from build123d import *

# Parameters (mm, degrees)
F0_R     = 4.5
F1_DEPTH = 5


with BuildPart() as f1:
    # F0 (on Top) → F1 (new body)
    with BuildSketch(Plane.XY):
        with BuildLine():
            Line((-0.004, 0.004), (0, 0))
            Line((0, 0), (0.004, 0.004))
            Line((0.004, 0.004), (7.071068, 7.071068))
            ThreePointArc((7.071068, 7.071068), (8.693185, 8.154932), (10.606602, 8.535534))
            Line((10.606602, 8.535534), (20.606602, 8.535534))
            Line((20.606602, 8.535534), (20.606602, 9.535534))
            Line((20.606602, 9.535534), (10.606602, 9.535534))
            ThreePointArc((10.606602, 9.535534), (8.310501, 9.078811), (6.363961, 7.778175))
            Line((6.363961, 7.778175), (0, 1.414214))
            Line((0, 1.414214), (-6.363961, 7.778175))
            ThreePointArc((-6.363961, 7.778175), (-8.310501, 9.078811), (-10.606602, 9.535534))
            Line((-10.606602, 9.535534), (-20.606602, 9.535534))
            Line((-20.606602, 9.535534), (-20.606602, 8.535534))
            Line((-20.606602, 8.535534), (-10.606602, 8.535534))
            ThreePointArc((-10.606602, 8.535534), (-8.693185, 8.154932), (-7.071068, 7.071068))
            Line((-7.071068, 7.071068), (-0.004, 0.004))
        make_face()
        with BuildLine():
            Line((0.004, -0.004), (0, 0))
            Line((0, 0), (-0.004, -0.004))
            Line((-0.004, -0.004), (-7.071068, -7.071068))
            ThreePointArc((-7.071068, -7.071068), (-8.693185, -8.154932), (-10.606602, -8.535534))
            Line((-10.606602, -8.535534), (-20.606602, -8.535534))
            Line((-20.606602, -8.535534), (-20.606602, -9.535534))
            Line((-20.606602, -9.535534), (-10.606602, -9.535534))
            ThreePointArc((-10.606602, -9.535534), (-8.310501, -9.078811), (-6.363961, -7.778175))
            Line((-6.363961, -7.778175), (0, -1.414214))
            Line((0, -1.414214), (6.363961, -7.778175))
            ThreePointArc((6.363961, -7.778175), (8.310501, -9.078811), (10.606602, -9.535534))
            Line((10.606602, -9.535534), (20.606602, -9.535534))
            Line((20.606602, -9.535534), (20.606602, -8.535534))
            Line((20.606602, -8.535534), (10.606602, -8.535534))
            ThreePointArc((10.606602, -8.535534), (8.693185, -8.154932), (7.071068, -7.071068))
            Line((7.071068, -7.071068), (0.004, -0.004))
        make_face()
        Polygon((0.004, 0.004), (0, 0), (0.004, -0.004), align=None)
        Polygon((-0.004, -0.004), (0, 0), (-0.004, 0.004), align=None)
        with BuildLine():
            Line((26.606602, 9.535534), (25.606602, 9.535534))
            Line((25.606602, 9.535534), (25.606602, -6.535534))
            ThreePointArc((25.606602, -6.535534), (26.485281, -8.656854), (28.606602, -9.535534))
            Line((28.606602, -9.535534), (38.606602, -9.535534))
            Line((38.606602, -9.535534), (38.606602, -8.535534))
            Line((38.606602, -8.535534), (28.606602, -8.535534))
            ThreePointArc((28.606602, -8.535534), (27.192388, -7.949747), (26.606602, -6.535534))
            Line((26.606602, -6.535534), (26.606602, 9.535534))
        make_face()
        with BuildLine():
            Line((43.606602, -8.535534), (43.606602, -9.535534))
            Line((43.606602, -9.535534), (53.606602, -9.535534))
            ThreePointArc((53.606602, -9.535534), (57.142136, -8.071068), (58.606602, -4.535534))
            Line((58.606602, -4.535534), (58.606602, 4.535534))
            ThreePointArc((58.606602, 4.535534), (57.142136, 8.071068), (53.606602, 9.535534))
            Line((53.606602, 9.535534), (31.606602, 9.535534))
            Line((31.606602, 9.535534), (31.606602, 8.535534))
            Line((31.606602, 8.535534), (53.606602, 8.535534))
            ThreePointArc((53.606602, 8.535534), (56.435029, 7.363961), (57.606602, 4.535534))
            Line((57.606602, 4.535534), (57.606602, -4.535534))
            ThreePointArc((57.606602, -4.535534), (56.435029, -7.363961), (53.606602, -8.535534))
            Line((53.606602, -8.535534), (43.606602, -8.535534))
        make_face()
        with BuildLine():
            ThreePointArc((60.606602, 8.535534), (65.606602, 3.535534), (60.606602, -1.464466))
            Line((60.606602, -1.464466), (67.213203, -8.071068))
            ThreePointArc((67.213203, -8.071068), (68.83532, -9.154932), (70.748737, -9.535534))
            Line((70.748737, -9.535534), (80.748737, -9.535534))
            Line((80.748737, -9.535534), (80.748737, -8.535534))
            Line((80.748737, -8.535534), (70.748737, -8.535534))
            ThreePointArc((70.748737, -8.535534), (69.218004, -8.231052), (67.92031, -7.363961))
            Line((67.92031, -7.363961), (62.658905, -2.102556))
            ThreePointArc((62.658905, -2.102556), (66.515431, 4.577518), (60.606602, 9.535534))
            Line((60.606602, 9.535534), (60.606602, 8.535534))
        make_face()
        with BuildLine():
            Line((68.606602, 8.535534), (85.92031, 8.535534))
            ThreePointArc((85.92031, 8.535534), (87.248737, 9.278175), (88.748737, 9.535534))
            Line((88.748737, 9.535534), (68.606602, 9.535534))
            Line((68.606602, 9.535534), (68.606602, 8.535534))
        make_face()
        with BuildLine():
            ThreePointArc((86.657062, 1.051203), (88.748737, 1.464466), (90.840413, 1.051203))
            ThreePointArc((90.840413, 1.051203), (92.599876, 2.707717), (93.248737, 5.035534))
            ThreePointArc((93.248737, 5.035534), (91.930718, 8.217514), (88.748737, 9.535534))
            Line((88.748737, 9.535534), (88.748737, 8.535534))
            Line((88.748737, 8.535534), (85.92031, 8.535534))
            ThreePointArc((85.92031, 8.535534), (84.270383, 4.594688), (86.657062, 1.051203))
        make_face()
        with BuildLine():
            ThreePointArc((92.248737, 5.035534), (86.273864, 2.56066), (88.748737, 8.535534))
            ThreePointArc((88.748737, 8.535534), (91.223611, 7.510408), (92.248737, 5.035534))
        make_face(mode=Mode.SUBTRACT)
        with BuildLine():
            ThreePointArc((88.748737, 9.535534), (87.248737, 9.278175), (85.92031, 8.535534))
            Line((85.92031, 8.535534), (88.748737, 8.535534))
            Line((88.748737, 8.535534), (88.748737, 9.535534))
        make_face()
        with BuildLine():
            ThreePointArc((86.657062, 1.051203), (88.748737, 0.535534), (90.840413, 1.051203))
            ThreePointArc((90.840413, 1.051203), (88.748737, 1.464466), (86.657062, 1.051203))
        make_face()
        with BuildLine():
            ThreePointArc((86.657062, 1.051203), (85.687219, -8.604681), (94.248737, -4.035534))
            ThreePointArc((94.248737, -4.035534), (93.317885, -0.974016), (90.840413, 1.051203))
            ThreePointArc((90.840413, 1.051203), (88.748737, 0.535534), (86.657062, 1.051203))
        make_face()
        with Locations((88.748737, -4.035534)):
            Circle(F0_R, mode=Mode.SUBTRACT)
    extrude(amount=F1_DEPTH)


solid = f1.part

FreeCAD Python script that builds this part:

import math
import FreeCAD as App
import Part
import Sketcher
from FreeCAD import Vector

doc = App.newDocument("Part")
body = doc.addObject("PartDesign::Body", "Body")
body.AllowCompound = True

# Sketch on XY plane
sketch1 = doc.addObject("Sketcher::SketchObject", "Sketch")
body.addObject(sketch1)
sketch1.AttachmentSupport = (doc.XY_Plane, [""])
sketch1.MapMode = "FlatFace"
sketch1.addGeometry([
    Part.LineSegment(Vector(0.004, 0.004, 0), Vector(7.071, 7.071, 0)),  # 0
    Part.ArcOfCircle(Part.Circle(Vector(10.607, 3.536, 0), Vector(0, 0, 1), 5), math.radians(90), math.radians(135)),  # 1
    Part.LineSegment(Vector(10.607, 8.536, 0), Vector(20.607, 8.536, 0)),  # 2
    Part.LineSegment(Vector(20.607, 8.536, 0), Vector(20.607, 9.536, 0)),  # 3
    Part.LineSegment(Vector(20.607, 9.536, 0), Vector(10.607, 9.536, 0)),  # 4
    Part.ArcOfCircle(Part.Circle(Vector(10.607, 3.536, 0), Vector(0, 0, 1), 6), math.radians(90), math.radians(135)),  # 5
    Part.LineSegment(Vector(6.364, 7.778, 0), Vector(0, 1.414, 0)),  # 6
    Part.LineSegment(Vector(0, 1.414, 0), Vector(-6.364, 7.778, 0)),  # 7
    Part.ArcOfCircle(Part.Circle(Vector(-10.607, 3.536, 0), Vector(0, 0, 1), 6), math.radians(45), math.radians(90)),  # 8
    Part.LineSegment(Vector(-10.607, 9.536, 0), Vector(-20.607, 9.536, 0)),  # 9
    Part.LineSegment(Vector(-20.607, 9.536, 0), Vector(-20.607, 8.536, 0)),  # 10
    Part.LineSegment(Vector(-20.607, 8.536, 0), Vector(-10.607, 8.536, 0)),  # 11
    Part.ArcOfCircle(Part.Circle(Vector(-10.607, 3.536, 0), Vector(0, 0, 1), 5), math.radians(45), math.radians(90)),  # 12
    Part.LineSegment(Vector(-7.071, 7.071, 0), Vector(-0.004, 0.004, 0)),  # 13
    Part.LineSegment(Vector(-0.004, 0.004, 0), Vector(-0.004, -0.004, 0)),  # 14
    Part.LineSegment(Vector(-0.004, -0.004, 0), Vector(-7.071, -7.071, 0)),  # 15
    Part.ArcOfCircle(Part.Circle(Vector(-10.607, -3.536, 0), Vector(0, 0, 1), 5), math.radians(-90), math.radians(-45)),  # 16
    Part.LineSegment(Vector(-10.607, -8.536, 0), Vector(-20.607, -8.536, 0)),  # 17
    Part.LineSegment(Vector(-20.607, -8.536, 0), Vector(-20.607, -9.536, 0)),  # 18
    Part.LineSegment(Vector(-20.607, -9.536, 0), Vector(-10.607, -9.536, 0)),  # 19
    Part.ArcOfCircle(Part.Circle(Vector(-10.607, -3.536, 0), Vector(0, 0, 1), 6), math.radians(-90), math.radians(-45)),  # 20
    Part.LineSegment(Vector(-6.364, -7.778, 0), Vector(0, -1.414, 0)),  # 21
    Part.LineSegment(Vector(0, -1.414, 0), Vector(6.364, -7.778, 0)),  # 22
    Part.ArcOfCircle(Part.Circle(Vector(10.607, -3.536, 0), Vector(0, 0, 1), 6), math.radians(-135), math.radians(-90)),  # 23
    Part.LineSegment(Vector(10.607, -9.536, 0), Vector(20.607, -9.536, 0)),  # 24
    Part.LineSegment(Vector(20.607, -9.536, 0), Vector(20.607, -8.536, 0)),  # 25
    Part.LineSegment(Vector(20.607, -8.536, 0), Vector(10.607, -8.536, 0)),  # 26
    Part.ArcOfCircle(Part.Circle(Vector(10.607, -3.536, 0), Vector(0, 0, 1), 5), math.radians(-135), math.radians(-90)),  # 27
    Part.LineSegment(Vector(7.071, -7.071, 0), Vector(0.004, -0.004, 0)),  # 28
    Part.LineSegment(Vector(0.004, -0.004, 0), Vector(0.004, 0.004, 0)),  # 29
    Part.LineSegment(Vector(26.607, 9.536, 0), Vector(25.607, 9.536, 0)),  # 30
    Part.LineSegment(Vector(25.607, 9.536, 0), Vector(25.607, -6.536, 0)),  # 31
    Part.ArcOfCircle(Part.Circle(Vector(28.607, -6.536, 0), Vector(0, 0, 1), 3), math.radians(180), math.radians(270)),  # 32
    Part.LineSegment(Vector(28.607, -9.536, 0), Vector(38.607, -9.536, 0)),  # 33
    Part.LineSegment(Vector(38.607, -9.536, 0), Vector(38.607, -8.536, 0)),  # 34
    Part.LineSegment(Vector(38.607, -8.536, 0), Vector(28.607, -8.536, 0)),  # 35
    Part.ArcOfCircle(Part.Circle(Vector(28.607, -6.536, 0), Vector(0, 0, 1), 2), math.radians(-180), math.radians(-90)),  # 36
    Part.LineSegment(Vector(26.607, -6.536, 0), Vector(26.607, 9.536, 0)),  # 37
    Part.LineSegment(Vector(43.607, -8.536, 0), Vector(43.607, -9.536, 0)),  # 38
    Part.LineSegment(Vector(43.607, -9.536, 0), Vector(53.607, -9.536, 0)),  # 39
    Part.ArcOfCircle(Part.Circle(Vector(53.607, -4.536, 0), Vector(0, 0, 1), 5), math.radians(-90), math.radians(0)),  # 40
    Part.LineSegment(Vector(58.607, -4.536, 0), Vector(58.607, 4.536, 0)),  # 41
    Part.ArcOfCircle(Part.Circle(Vector(53.607, 4.536, 0), Vector(0, 0, 1), 5), math.radians(0), math.radians(90)),  # 42
    Part.LineSegment(Vector(53.607, 9.536, 0), Vector(31.607, 9.536, 0)),  # 43
    Part.LineSegment(Vector(31.607, 9.536, 0), Vector(31.607, 8.536, 0)),  # 44
    Part.LineSegment(Vector(31.607, 8.536, 0), Vector(53.607, 8.536, 0)),  # 45
    Part.ArcOfCircle(Part.Circle(Vector(53.607, 4.536, 0), Vector(0, 0, 1), 4), math.radians(0), math.radians(90)),  # 46
    Part.LineSegment(Vector(57.607, 4.536, 0), Vector(57.607, -4.536, 0)),  # 47
    Part.ArcOfCircle(Part.Circle(Vector(53.607, -4.536, 0), Vector(0, 0, 1), 4), math.radians(-90), math.radians(0)),  # 48
    Part.LineSegment(Vector(53.607, -8.536, 0), Vector(43.607, -8.536, 0)),  # 49
    Part.ArcOfCircle(Part.Circle(Vector(60.607, 3.536, 0), Vector(0, 0, 1), 5), math.radians(-90), math.radians(90)),  # 50
    Part.LineSegment(Vector(60.607, -1.464, 0), Vector(67.213, -8.071, 0)),  # 51
    Part.ArcOfCircle(Part.Circle(Vector(70.749, -4.536, 0), Vector(0, 0, 1), 5), math.radians(-135), math.radians(-90)),  # 52
    Part.LineSegment(Vector(70.749, -9.536, 0), Vector(80.749, -9.536, 0)),  # 53
    Part.LineSegment(Vector(80.749, -9.536, 0), Vector(80.749, -8.536, 0)),  # 54
    Part.LineSegment(Vector(80.749, -8.536, 0), Vector(70.749, -8.536, 0)),  # 55
    Part.ArcOfCircle(Part.Circle(Vector(70.749, -4.536, 0), Vector(0, 0, 1), 4), math.radians(-135), math.radians(-90)),  # 56
    Part.LineSegment(Vector(67.92, -7.364, 0), Vector(62.659, -2.103, 0)),  # 57
    Part.ArcOfCircle(Part.Circle(Vector(60.607, 3.536, 0), Vector(0, 0, 1), 6), math.radians(-70), math.radians(90)),  # 58
    Part.LineSegment(Vector(60.607, 9.536, 0), Vector(60.607, 8.536, 0)),  # 59
    Part.LineSegment(Vector(68.607, 8.536, 0), Vector(85.92, 8.536, 0)),  # 60
    Part.ArcOfCircle(Part.Circle(Vector(88.749, 5.036, 0), Vector(0, 0, 1), 4.5), math.radians(129), math.radians(242)),  # 61
    Part.ArcOfCircle(Part.Circle(Vector(88.749, -4.036, 0), Vector(0, 0, 1), 5.5), math.radians(112), math.radians(360)),  # 62
    Part.ArcOfCircle(Part.Circle(Vector(88.749, -4.036, 0), Vector(0, 0, 1), 5.5), math.radians(0), math.radians(68)),  # 63
    Part.ArcOfCircle(Part.Circle(Vector(88.749, 5.036, 0), Vector(0, 0, 1), 4.5), math.radians(-62), math.radians(0)),  # 64
    Part.ArcOfCircle(Part.Circle(Vector(88.749, 5.036, 0), Vector(0, 0, 1), 4.5), math.radians(0), math.radians(90)),  # 65
    Part.LineSegment(Vector(88.749, 9.536, 0), Vector(68.607, 9.536, 0)),  # 66
    Part.LineSegment(Vector(68.607, 9.536, 0), Vector(68.607, 8.536, 0)),  # 67
    Part.Circle(Vector(88.749, -4.036, 0), Vector(0, 0, 1), 4.5),  # 68
    Part.ArcOfCircle(Part.Circle(Vector(88.749, 5.036, 0), Vector(0, 0, 1), 3.5), math.radians(90), math.radians(360)),  # 69
    Part.ArcOfCircle(Part.Circle(Vector(88.749, 5.036, 0), Vector(0, 0, 1), 3.5), math.radians(0), math.radians(90)),  # 70
], False)
sketch1.addConstraint([
    Sketcher.Constraint("Tangent", 0, 2, 1, 2),
    Sketcher.Constraint("Tangent", 1, 1, 2, 1),
    Sketcher.Constraint("Coincident", 2, 2, 3, 1),
    Sketcher.Constraint("Coincident", 3, 2, 4, 1),
    Sketcher.Constraint("Tangent", 4, 2, 5, 1),
    Sketcher.Constraint("Tangent", 5, 2, 6, 1),
    Sketcher.Constraint("Coincident", 6, 2, 7, 1),
    Sketcher.Constraint("Tangent", 7, 2, 8, 1),
    Sketcher.Constraint("Tangent", 8, 2, 9, 1),
    Sketcher.Constraint("Coincident", 9, 2, 10, 1),
    Sketcher.Constraint("Coincident", 10, 2, 11, 1),
    Sketcher.Constraint("Tangent", 11, 2, 12, 2),
    Sketcher.Constraint("Tangent", 12, 1, 13, 1),
    Sketcher.Constraint("Coincident", 13, 2, 14, 1),
    Sketcher.Constraint("Coincident", 14, 2, 15, 1),
    Sketcher.Constraint("Tangent", 15, 2, 16, 2),
    Sketcher.Constraint("Tangent", 16, 1, 17, 1),
    Sketcher.Constraint("Coincident", 17, 2, 18, 1),
    Sketcher.Constraint("Coincident", 18, 2, 19, 1),
    Sketcher.Constraint("Tangent", 19, 2, 20, 1),
    Sketcher.Constraint("Tangent", 20, 2, 21, 1),
    Sketcher.Constraint("Coincident", 21, 2, 22, 1),
    Sketcher.Constraint("Tangent", 22, 2, 23, 1),
    Sketcher.Constraint("Tangent", 23, 2, 24, 1),
    Sketcher.Constraint("Coincident", 24, 2, 25, 1),
    Sketcher.Constraint("Coincident", 25, 2, 26, 1),
    Sketcher.Constraint("Tangent", 26, 2, 27, 2),
    Sketcher.Constraint("Tangent", 27, 1, 28, 1),
    Sketcher.Constraint("Coincident", 28, 2, 29, 1),
    Sketcher.Constraint("Coincident", 29, 2, 0, 1),
    Sketcher.Constraint("Coincident", 30, 2, 31, 1),
    Sketcher.Constraint("Tangent", 31, 2, 32, 1),
    Sketcher.Constraint("Tangent", 32, 2, 33, 1),
    Sketcher.Constraint("Coincident", 33, 2, 34, 1),
    Sketcher.Constraint("Coincident", 34, 2, 35, 1),
    Sketcher.Constraint("Tangent", 35, 2, 36, 2),
    Sketcher.Constraint("Tangent", 36, 1, 37, 1),
    Sketcher.Constraint("Coincident", 37, 2, 30, 1),
    Sketcher.Constraint("Coincident", 38, 2, 39, 1),
    Sketcher.Constraint("Tangent", 39, 2, 40, 1),
    Sketcher.Constraint("Tangent", 40, 2, 41, 1),
    Sketcher.Constraint("Tangent", 41, 2, 42, 1),
    Sketcher.Constraint("Tangent", 42, 2, 43, 1),
    Sketcher.Constraint("Coincident", 43, 2, 44, 1),
    Sketcher.Constraint("Coincident", 44, 2, 45, 1),
    Sketcher.Constraint("Tangent", 45, 2, 46, 2),
    Sketcher.Constraint("Tangent", 46, 1, 47, 1),
    Sketcher.Constraint("Tangent", 47, 2, 48, 2),
    Sketcher.Constraint("Tangent", 48, 1, 49, 1),
    Sketcher.Constraint("Coincident", 49, 2, 38, 1),
    Sketcher.Constraint("Coincident", 50, 1, 51, 1),
    Sketcher.Constraint("Tangent", 51, 2, 52, 1),
    Sketcher.Constraint("Tangent", 52, 2, 53, 1),
    Sketcher.Constraint("Coincident", 53, 2, 54, 1),
    Sketcher.Constraint("Coincident", 54, 2, 55, 1),
    Sketcher.Constraint("Tangent", 55, 2, 56, 2),
    Sketcher.Constraint("Tangent", 56, 1, 57, 1),
    Sketcher.Constraint("Coincident", 57, 2, 58, 1),
    Sketcher.Constraint("Coincident", 58, 2, 59, 1),
    Sketcher.Constraint("Coincident", 59, 2, 50, 2),
    Sketcher.Constraint("Coincident", 60, 2, 61, 1),
    Sketcher.Constraint("Coincident", 61, 2, 62, 1),
    Sketcher.Constraint("Tangent", 62, 2, 63, 1),
    Sketcher.Constraint("Coincident", 63, 2, 64, 1),
    Sketcher.Constraint("Tangent", 64, 2, 65, 1),
    Sketcher.Constraint("Tangent", 65, 2, 66, 1),
    Sketcher.Constraint("Coincident", 66, 2, 67, 1),
    Sketcher.Constraint("Coincident", 67, 2, 60, 1),
    Sketcher.Constraint("Tangent", 69, 1, 70, 2),
    Sketcher.Constraint("Coincident", 70, 1, 69, 2),
    Sketcher.Constraint("Horizontal", 2),
    Sketcher.Constraint("Vertical", 3),
    Sketcher.Constraint("Horizontal", 4),
    Sketcher.Constraint("Horizontal", 9),
    Sketcher.Constraint("Vertical", 10),
    Sketcher.Constraint("Horizontal", 11),
    Sketcher.Constraint("Vertical", 14),
    Sketcher.Constraint("Horizontal", 17),
    Sketcher.Constraint("Vertical", 18),
    Sketcher.Constraint("Horizontal", 19),
    Sketcher.Constraint("Horizontal", 24),
    Sketcher.Constraint("Vertical", 25),
    Sketcher.Constraint("Horizontal", 26),
    Sketcher.Constraint("Vertical", 29),
    Sketcher.Constraint("Horizontal", 30),
    Sketcher.Constraint("Vertical", 31),
    Sketcher.Constraint("Horizontal", 33),
    Sketcher.Constraint("Vertical", 34),
    Sketcher.Constraint("Horizontal", 35),
    Sketcher.Constraint("Vertical", 37),
    Sketcher.Constraint("Vertical", 38),
    Sketcher.Constraint("Horizontal", 39),
    Sketcher.Constraint("Vertical", 41),
    Sketcher.Constraint("Horizontal", 43),
    Sketcher.Constraint("Vertical", 44),
    Sketcher.Constraint("Horizontal", 45),
    Sketcher.Constraint("Vertical", 47),
    Sketcher.Constraint("Horizontal", 49),
    Sketcher.Constraint("Horizontal", 53),
    Sketcher.Constraint("Vertical", 54),
    Sketcher.Constraint("Horizontal", 55),
    Sketcher.Constraint("Vertical", 59),
    Sketcher.Constraint("Horizontal", 60),
    Sketcher.Constraint("Horizontal", 66),
    Sketcher.Constraint("Vertical", 67),
    Sketcher.Constraint("Coincident", 5, 3, 1, 3),
    Sketcher.Constraint("Coincident", 12, 3, 8, 3),
    Sketcher.Constraint("Coincident", 20, 3, 16, 3),
    Sketcher.Constraint("Coincident", 27, 3, 23, 3),
    Sketcher.Constraint("Coincident", 36, 3, 32, 3),
    Sketcher.Constraint("Coincident", 46, 3, 42, 3),
    Sketcher.Constraint("Coincident", 48, 3, 40, 3),
    Sketcher.Constraint("Coincident", 56, 3, 52, 3),
    Sketcher.Constraint("Coincident", 58, 3, 50, 3),
    Sketcher.Constraint("Coincident", 64, 3, 61, 3),
    Sketcher.Constraint("Coincident", 68, 3, 62, 3),
    Sketcher.Constraint("Coincident", 69, 3, 61, 3),
    Sketcher.Constraint("Equal", 5, 8),
    Sketcher.Constraint("Equal", 1, 12),
    Sketcher.Constraint("Equal", 12, 16),
    Sketcher.Constraint("Equal", 8, 20),
    Sketcher.Constraint("Equal", 20, 23),
    Sketcher.Constraint("Equal", 16, 27),
    Sketcher.Constraint("Equal", 27, 40),
    Sketcher.Constraint("Equal", 40, 42),
    Sketcher.Constraint("Equal", 42, 50),
    Sketcher.Constraint("Equal", 42, 52),
    Sketcher.Constraint("Equal", 62, 63),
    Sketcher.Constraint("Equal", 61, 64),
    Sketcher.Constraint("Equal", 64, 65),
    Sketcher.Constraint("Equal", 65, 68),
    Sketcher.Constraint("Symmetric", 1, 3, 16, 3, -1, 1),
    Sketcher.Constraint("Symmetric", 8, 3, 23, 3, -1, 1),
    Sketcher.Constraint("Symmetric", 6, 2, 21, 2, -1, 1),
    Sketcher.Constraint("Symmetric", 13, 2, 28, 2, -1, 1),
    Sketcher.Constraint("Symmetric", 1, 3, 8, 3, -2),
    Sketcher.Constraint("PointOnObject", 6, 2, -2),
    Sketcher.Constraint("Parallel", 0, 6),
    Sketcher.Constraint("Perpendicular", 6, 7),
    Sketcher.Constraint("Parallel", 7, 13),
    Sketcher.Constraint("Perpendicular", 13, 15),
    Sketcher.Constraint("Parallel", 28, 51),
    Sketcher.Constraint("Parallel", 51, 57),
    Sketcher.Constraint("Horizontal", 40, 3, 52, 3),
    Sketcher.Constraint("Horizontal", 9, 2, 30, 2),
    Sketcher.Constraint("Horizontal", 24, 2, 32, 2),
    Sketcher.Constraint("Horizontal", 26, 2, 34, 2),
    Sketcher.Constraint("Horizontal", 33, 2, 38, 2),
    Sketcher.Constraint("Horizontal", 37, 2, 42, 2),
    Sketcher.Constraint("Horizontal", 11, 2, 44, 2),
    Sketcher.Constraint("Horizontal", 49, 2, 54, 2),
    Sketcher.Constraint("Horizontal", 43, 2, 58, 2),
    Sketcher.Constraint("Horizontal", 45, 2, 59, 2),
    Sketcher.Constraint("Horizontal", 59, 2, 60, 2),
    Sketcher.Constraint("Horizontal", 68, 3, 62, 2),
    Sketcher.Constraint("Horizontal", 61, 2, 63, 2),
    Sketcher.Constraint("Horizontal", 70, 3, 64, 2),
    Sketcher.Constraint("Horizontal", 58, 2, 65, 2),
    Sketcher.Constraint("Horizontal", 67, 2, 69, 1),
    Sketcher.Constraint("Horizontal", 64, 2, 70, 1),
    Sketcher.Constraint("Vertical", 10, 2, 17, 2),
    Sketcher.Constraint("Vertical", 3, 2, 24, 2),
    Sketcher.Constraint("Vertical", 58, 3, 50, 1),
    Sketcher.Constraint("Vertical", 50, 1, 58, 2),
    Sketcher.Constraint("Vertical", 65, 2, 69, 1),
    Sketcher.Constraint("Equal", 4, 9),
    Sketcher.Constraint("Equal", 26, 33),
    Sketcher.Constraint("Equal", 35, 39),
    Sketcher.Constraint("Equal", 49, 53),
    Sketcher.Constraint("Diameter", 68, 9.0),
    Sketcher.Constraint("Radius", 32, 2.999999),
    Sketcher.Constraint("Radius", 36, 2.0),
    Sketcher.Constraint("Radius", 40, 5.0),
    Sketcher.Constraint("Radius", 62, 5.5),
    Sketcher.Constraint("DistanceX", 2, 1, 2, 2, 10.0),
    Sketcher.Constraint("DistanceX", 43, 2, 43, 1, 22.0),
    Sketcher.Constraint("Distance", 6, 9.0),
    Sketcher.Constraint("DistanceY", 14, 2, 14, 1, 0.008),
    Sketcher.Constraint("DistanceX", 13, 2, -1, 1, 0.004),
    Sketcher.Constraint("DistanceX", 60, 1, 60, 2, 17.313708),
    Sketcher.Constraint("DistanceX", -1, 1, 32, 3, 28.606601),
    Sketcher.Constraint("DistanceX", -1, 1, 46, 3, 53.606602),
    Sketcher.Constraint("DistanceX", -1, 1, 58, 3, 60.606601),
    Sketcher.Constraint("DistanceX", -1, 1, 66, 2, 68.606602),
    Sketcher.Constraint("DistanceY", 62, 3, -1, 1, 4.035534),
])
pad1 = doc.addObject("PartDesign::Pad", "Pad")
body.addObject(pad1)
pad1.Profile = sketch1
pad1.Length = 5

doc.recompute()
